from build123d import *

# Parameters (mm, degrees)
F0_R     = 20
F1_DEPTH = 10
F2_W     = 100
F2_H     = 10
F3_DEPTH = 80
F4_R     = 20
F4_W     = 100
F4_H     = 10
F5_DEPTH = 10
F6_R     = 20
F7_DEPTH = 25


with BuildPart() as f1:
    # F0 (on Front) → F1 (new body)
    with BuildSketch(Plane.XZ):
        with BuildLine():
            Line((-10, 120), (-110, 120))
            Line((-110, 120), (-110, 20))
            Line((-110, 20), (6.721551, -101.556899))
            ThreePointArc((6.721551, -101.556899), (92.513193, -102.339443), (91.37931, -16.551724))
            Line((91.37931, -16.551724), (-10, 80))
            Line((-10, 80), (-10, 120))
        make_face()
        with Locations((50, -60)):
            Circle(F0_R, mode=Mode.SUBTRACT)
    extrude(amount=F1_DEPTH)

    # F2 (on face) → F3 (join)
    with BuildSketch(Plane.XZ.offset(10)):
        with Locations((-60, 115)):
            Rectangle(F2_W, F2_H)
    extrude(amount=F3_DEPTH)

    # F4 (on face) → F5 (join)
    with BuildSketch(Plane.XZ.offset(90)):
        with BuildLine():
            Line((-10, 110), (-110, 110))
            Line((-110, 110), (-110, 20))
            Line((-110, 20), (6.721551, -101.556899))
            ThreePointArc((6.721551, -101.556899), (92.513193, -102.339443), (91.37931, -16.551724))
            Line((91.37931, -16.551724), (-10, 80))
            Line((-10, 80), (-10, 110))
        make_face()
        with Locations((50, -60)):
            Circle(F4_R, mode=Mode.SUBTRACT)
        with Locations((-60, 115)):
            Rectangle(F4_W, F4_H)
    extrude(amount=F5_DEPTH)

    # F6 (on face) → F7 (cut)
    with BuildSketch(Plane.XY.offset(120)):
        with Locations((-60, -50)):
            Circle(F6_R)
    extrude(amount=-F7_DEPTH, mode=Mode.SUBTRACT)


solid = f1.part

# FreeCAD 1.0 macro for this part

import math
import FreeCAD as App
import Part
import Sketcher


def add_polygon(sketch, points):
    """Adds a closed chain of lines whose ends are joined by coincident constraints."""
    first, n = sketch.GeometryCount, len(points)
    for a, b in zip(points, points[1:] + points[:1]):
        sketch.addGeometry(Part.LineSegment(App.Vector(*a, 0), App.Vector(*b, 0)), False)
    for i in range(n):
        sketch.addConstraint(Sketcher.Constraint("Coincident", first + i, 2, first + (i + 1) % n, 1))

doc = App.newDocument("Part")
body = doc.addObject("PartDesign::Body", "Body")

sketch1 = body.newObject("Sketcher::SketchObject", "Sketch")
sketch1.AttachmentSupport = (doc.getObject("XZ_Plane"), [""])
sketch1.MapMode = "FlatFace"
sketch1.addGeometry([
    Part.LineSegment(App.Vector(-10, 120, 0), App.Vector(-110, 120, 0)),
    Part.LineSegment(App.Vector(-110, 120, 0), App.Vector(-110, 20, 0)),
    Part.LineSegment(App.Vector(-110, 20, 0), App.Vector(7, -102, 0)),
    Part.ArcOfCircle(Part.Circle(App.Vector(50, -60, 0), App.Vector(0, 0, 1), 60), math.radians(-136), math.radians(46)),
    Part.LineSegment(App.Vector(91, -17, 0), App.Vector(-10, 80, 0)),
    Part.LineSegment(App.Vector(-10, 80, 0), App.Vector(-10, 120, 0)),
    Part.Circle(App.Vector(50, -60, 0), App.Vector(0, 0, 1), 20),
], False)
sketch1.addConstraint([
    Sketcher.Constraint("Coincident", 0, 2, 1, 1),
    Sketcher.Constraint("Coincident", 1, 2, 2, 1),
    Sketcher.Constraint("Tangent", 2, 2, 3, 1),
    Sketcher.Constraint("Tangent", 3, 2, 4, 1),
    Sketcher.Constraint("Coincident", 4, 2, 5, 1),
    Sketcher.Constraint("Coincident", 5, 2, 0, 1),
    Sketcher.Constraint("Horizontal", 0),
    Sketcher.Constraint("Vertical", 1),
    Sketcher.Constraint("Vertical", 5),
    Sketcher.Constraint("Coincident", 6, 3, 3, 3),
    Sketcher.Constraint("Equal", 0, 1),
    Sketcher.Constraint("Diameter", 6, 40.0),
    Sketcher.Constraint("Radius", 3, 60.0),
    Sketcher.Constraint("DistanceX", 0, 2, 0, 1, 100.0),
    Sketcher.Constraint("DistanceY", 5, 1, 5, 2, 40.0),
    Sketcher.Constraint("Distance", 4, 140.0),
    Sketcher.Constraint("DistanceX", -1, 1, 3, 3, 50.0),
    Sketcher.Constraint("DistanceY", 3, 3, -1, 1, 60.0),
    Sketcher.Constraint("DistanceX", 0, 2, -1, 1, 110.0),
])
pad1 = body.newObject("PartDesign::Pad", "Pad")
pad1.Profile = sketch1
pad1.Length = 10

sketch2 = body.newObject("Sketcher::SketchObject", "Sketch001")
sketch2.AttachmentSupport = (doc.getObject("XZ_Plane"), [""])
sketch2.MapMode = "FlatFace"
sketch2.AttachmentOffset = App.Placement(App.Vector(0, 0, 10), App.Rotation())
add_polygon(sketch2, [(-110, 120), (-110, 110), (-10, 110), (-10, 120)])
sketch2.addConstraint([
    Sketcher.Constraint("Vertical", 0),
    Sketcher.Constraint("Horizontal", 1),
    Sketcher.Constraint("Vertical", 2),
    Sketcher.Constraint("Horizontal", 3),
    Sketcher.Constraint("DistanceX", 1, 1, 1, 2, 100.0),
    Sketcher.Constraint("DistanceY", 0, 2, 0, 1, 10.0),
    Sketcher.Constraint("DistanceX", 0, 2, -1, 1, 110.0),
    Sketcher.Constraint("DistanceY", -1, 1, 0, 2, 110.0),
])
pad2 = body.newObject("PartDesign::Pad", "Pad001")
pad2.Profile = sketch2
pad2.Length = 80

sketch3 = body.newObject("Sketcher::SketchObject", "Sketch002")
sketch3.AttachmentSupport = (doc.getObject("XZ_Plane"), [""])
sketch3.MapMode = "FlatFace"
sketch3.AttachmentOffset = App.Placement(App.Vector(0, 0, 90), App.Rotation())
sketch3.addGeometry([
    Part.LineSegment(App.Vector(-10, 80, 0), App.Vector(-10, 120, 0)),
    Part.LineSegment(App.Vector(-10, 120, 0), App.Vector(-110, 120, 0)),
    Part.LineSegment(App.Vector(-110, 120, 0), App.Vector(-110, 20, 0)),
    Part.LineSegment(App.Vector(-110, 20, 0), App.Vector(7, -102, 0)),
    Part.ArcOfCircle(Part.Circle(App.Vector(50, -60, 0), App.Vector(0, 0, 1), 60), math.radians(-136), math.radians(46)),
    Part.LineSegment(App.Vector(91, -17, 0), App.Vector(-10, 80, 0)),
    Part.Circle(App.Vector(50, -60, 0), App.Vector(0, 0, 1), 20),
], False)
sketch3.addConstraint([
    Sketcher.Constraint("Coincident", 0, 2, 1, 1),
    Sketcher.Constraint("Coincident", 1, 2, 2, 1),
    Sketcher.Constraint("Coincident", 2, 2, 3, 1),
    Sketcher.Constraint("Tangent", 3, 2, 4, 1),
    Sketcher.Constraint("Tangent", 4, 2, 5, 1),
    Sketcher.Constraint("Coincident", 5, 2, 0, 1),
    Sketcher.Constraint("Vertical", 0),
    Sketcher.Constraint("Horizontal", 1),
    Sketcher.Constraint("Vertical", 2),
    Sketcher.Constraint("Coincident", 6, 3, 4, 3),
    Sketcher.Constraint("Equal", 1, 2),
    Sketcher.Constraint("Diameter", 6, 40.0),
    Sketcher.Constraint("Radius", 4, 60.0),
    Sketcher.Constraint("DistanceX", 1, 2, 1, 1, 100.0),
    Sketcher.Constraint("DistanceY", 0, 1, 0, 2, 40.0),
    Sketcher.Constraint("Distance", 5, 140.0),
    Sketcher.Constraint("DistanceX", -1, 1, 4, 3, 50.0),
    Sketcher.Constraint("DistanceY", 4, 3, -1, 1, 60.0),
    Sketcher.Constraint("DistanceX", 0, 2, -1, 1, 10.0),
])
pad3 = body.newObject("PartDesign::Pad", "Pad002")
pad3.Profile = sketch3
pad3.Length = 10

sketch4 = body.newObject("Sketcher::SketchObject", "Sketch003")
sketch4.AttachmentSupport = (doc.getObject("XY_Plane"), [""])
sketch4.MapMode = "FlatFace"
sketch4.AttachmentOffset = App.Placement(App.Vector(0, 0, 120), App.Rotation())
sketch4.addGeometry(Part.Circle(App.Vector(-60, -50, 0), App.Vector(0, 0, 1), 20), False)
sketch4.addConstraint([
    Sketcher.Constraint("Diameter", 0, 40.0),
    Sketcher.Constraint("DistanceX", 0, 3, -1, 1, 60.0),
    Sketcher.Constraint("DistanceY", 0, 3, -1, 1, 50.0),
])
pocket1 = body.newObject("PartDesign::Pocket", "Pocket")
pocket1.Profile = sketch4
pocket1.Length = 25

doc.recompute()
